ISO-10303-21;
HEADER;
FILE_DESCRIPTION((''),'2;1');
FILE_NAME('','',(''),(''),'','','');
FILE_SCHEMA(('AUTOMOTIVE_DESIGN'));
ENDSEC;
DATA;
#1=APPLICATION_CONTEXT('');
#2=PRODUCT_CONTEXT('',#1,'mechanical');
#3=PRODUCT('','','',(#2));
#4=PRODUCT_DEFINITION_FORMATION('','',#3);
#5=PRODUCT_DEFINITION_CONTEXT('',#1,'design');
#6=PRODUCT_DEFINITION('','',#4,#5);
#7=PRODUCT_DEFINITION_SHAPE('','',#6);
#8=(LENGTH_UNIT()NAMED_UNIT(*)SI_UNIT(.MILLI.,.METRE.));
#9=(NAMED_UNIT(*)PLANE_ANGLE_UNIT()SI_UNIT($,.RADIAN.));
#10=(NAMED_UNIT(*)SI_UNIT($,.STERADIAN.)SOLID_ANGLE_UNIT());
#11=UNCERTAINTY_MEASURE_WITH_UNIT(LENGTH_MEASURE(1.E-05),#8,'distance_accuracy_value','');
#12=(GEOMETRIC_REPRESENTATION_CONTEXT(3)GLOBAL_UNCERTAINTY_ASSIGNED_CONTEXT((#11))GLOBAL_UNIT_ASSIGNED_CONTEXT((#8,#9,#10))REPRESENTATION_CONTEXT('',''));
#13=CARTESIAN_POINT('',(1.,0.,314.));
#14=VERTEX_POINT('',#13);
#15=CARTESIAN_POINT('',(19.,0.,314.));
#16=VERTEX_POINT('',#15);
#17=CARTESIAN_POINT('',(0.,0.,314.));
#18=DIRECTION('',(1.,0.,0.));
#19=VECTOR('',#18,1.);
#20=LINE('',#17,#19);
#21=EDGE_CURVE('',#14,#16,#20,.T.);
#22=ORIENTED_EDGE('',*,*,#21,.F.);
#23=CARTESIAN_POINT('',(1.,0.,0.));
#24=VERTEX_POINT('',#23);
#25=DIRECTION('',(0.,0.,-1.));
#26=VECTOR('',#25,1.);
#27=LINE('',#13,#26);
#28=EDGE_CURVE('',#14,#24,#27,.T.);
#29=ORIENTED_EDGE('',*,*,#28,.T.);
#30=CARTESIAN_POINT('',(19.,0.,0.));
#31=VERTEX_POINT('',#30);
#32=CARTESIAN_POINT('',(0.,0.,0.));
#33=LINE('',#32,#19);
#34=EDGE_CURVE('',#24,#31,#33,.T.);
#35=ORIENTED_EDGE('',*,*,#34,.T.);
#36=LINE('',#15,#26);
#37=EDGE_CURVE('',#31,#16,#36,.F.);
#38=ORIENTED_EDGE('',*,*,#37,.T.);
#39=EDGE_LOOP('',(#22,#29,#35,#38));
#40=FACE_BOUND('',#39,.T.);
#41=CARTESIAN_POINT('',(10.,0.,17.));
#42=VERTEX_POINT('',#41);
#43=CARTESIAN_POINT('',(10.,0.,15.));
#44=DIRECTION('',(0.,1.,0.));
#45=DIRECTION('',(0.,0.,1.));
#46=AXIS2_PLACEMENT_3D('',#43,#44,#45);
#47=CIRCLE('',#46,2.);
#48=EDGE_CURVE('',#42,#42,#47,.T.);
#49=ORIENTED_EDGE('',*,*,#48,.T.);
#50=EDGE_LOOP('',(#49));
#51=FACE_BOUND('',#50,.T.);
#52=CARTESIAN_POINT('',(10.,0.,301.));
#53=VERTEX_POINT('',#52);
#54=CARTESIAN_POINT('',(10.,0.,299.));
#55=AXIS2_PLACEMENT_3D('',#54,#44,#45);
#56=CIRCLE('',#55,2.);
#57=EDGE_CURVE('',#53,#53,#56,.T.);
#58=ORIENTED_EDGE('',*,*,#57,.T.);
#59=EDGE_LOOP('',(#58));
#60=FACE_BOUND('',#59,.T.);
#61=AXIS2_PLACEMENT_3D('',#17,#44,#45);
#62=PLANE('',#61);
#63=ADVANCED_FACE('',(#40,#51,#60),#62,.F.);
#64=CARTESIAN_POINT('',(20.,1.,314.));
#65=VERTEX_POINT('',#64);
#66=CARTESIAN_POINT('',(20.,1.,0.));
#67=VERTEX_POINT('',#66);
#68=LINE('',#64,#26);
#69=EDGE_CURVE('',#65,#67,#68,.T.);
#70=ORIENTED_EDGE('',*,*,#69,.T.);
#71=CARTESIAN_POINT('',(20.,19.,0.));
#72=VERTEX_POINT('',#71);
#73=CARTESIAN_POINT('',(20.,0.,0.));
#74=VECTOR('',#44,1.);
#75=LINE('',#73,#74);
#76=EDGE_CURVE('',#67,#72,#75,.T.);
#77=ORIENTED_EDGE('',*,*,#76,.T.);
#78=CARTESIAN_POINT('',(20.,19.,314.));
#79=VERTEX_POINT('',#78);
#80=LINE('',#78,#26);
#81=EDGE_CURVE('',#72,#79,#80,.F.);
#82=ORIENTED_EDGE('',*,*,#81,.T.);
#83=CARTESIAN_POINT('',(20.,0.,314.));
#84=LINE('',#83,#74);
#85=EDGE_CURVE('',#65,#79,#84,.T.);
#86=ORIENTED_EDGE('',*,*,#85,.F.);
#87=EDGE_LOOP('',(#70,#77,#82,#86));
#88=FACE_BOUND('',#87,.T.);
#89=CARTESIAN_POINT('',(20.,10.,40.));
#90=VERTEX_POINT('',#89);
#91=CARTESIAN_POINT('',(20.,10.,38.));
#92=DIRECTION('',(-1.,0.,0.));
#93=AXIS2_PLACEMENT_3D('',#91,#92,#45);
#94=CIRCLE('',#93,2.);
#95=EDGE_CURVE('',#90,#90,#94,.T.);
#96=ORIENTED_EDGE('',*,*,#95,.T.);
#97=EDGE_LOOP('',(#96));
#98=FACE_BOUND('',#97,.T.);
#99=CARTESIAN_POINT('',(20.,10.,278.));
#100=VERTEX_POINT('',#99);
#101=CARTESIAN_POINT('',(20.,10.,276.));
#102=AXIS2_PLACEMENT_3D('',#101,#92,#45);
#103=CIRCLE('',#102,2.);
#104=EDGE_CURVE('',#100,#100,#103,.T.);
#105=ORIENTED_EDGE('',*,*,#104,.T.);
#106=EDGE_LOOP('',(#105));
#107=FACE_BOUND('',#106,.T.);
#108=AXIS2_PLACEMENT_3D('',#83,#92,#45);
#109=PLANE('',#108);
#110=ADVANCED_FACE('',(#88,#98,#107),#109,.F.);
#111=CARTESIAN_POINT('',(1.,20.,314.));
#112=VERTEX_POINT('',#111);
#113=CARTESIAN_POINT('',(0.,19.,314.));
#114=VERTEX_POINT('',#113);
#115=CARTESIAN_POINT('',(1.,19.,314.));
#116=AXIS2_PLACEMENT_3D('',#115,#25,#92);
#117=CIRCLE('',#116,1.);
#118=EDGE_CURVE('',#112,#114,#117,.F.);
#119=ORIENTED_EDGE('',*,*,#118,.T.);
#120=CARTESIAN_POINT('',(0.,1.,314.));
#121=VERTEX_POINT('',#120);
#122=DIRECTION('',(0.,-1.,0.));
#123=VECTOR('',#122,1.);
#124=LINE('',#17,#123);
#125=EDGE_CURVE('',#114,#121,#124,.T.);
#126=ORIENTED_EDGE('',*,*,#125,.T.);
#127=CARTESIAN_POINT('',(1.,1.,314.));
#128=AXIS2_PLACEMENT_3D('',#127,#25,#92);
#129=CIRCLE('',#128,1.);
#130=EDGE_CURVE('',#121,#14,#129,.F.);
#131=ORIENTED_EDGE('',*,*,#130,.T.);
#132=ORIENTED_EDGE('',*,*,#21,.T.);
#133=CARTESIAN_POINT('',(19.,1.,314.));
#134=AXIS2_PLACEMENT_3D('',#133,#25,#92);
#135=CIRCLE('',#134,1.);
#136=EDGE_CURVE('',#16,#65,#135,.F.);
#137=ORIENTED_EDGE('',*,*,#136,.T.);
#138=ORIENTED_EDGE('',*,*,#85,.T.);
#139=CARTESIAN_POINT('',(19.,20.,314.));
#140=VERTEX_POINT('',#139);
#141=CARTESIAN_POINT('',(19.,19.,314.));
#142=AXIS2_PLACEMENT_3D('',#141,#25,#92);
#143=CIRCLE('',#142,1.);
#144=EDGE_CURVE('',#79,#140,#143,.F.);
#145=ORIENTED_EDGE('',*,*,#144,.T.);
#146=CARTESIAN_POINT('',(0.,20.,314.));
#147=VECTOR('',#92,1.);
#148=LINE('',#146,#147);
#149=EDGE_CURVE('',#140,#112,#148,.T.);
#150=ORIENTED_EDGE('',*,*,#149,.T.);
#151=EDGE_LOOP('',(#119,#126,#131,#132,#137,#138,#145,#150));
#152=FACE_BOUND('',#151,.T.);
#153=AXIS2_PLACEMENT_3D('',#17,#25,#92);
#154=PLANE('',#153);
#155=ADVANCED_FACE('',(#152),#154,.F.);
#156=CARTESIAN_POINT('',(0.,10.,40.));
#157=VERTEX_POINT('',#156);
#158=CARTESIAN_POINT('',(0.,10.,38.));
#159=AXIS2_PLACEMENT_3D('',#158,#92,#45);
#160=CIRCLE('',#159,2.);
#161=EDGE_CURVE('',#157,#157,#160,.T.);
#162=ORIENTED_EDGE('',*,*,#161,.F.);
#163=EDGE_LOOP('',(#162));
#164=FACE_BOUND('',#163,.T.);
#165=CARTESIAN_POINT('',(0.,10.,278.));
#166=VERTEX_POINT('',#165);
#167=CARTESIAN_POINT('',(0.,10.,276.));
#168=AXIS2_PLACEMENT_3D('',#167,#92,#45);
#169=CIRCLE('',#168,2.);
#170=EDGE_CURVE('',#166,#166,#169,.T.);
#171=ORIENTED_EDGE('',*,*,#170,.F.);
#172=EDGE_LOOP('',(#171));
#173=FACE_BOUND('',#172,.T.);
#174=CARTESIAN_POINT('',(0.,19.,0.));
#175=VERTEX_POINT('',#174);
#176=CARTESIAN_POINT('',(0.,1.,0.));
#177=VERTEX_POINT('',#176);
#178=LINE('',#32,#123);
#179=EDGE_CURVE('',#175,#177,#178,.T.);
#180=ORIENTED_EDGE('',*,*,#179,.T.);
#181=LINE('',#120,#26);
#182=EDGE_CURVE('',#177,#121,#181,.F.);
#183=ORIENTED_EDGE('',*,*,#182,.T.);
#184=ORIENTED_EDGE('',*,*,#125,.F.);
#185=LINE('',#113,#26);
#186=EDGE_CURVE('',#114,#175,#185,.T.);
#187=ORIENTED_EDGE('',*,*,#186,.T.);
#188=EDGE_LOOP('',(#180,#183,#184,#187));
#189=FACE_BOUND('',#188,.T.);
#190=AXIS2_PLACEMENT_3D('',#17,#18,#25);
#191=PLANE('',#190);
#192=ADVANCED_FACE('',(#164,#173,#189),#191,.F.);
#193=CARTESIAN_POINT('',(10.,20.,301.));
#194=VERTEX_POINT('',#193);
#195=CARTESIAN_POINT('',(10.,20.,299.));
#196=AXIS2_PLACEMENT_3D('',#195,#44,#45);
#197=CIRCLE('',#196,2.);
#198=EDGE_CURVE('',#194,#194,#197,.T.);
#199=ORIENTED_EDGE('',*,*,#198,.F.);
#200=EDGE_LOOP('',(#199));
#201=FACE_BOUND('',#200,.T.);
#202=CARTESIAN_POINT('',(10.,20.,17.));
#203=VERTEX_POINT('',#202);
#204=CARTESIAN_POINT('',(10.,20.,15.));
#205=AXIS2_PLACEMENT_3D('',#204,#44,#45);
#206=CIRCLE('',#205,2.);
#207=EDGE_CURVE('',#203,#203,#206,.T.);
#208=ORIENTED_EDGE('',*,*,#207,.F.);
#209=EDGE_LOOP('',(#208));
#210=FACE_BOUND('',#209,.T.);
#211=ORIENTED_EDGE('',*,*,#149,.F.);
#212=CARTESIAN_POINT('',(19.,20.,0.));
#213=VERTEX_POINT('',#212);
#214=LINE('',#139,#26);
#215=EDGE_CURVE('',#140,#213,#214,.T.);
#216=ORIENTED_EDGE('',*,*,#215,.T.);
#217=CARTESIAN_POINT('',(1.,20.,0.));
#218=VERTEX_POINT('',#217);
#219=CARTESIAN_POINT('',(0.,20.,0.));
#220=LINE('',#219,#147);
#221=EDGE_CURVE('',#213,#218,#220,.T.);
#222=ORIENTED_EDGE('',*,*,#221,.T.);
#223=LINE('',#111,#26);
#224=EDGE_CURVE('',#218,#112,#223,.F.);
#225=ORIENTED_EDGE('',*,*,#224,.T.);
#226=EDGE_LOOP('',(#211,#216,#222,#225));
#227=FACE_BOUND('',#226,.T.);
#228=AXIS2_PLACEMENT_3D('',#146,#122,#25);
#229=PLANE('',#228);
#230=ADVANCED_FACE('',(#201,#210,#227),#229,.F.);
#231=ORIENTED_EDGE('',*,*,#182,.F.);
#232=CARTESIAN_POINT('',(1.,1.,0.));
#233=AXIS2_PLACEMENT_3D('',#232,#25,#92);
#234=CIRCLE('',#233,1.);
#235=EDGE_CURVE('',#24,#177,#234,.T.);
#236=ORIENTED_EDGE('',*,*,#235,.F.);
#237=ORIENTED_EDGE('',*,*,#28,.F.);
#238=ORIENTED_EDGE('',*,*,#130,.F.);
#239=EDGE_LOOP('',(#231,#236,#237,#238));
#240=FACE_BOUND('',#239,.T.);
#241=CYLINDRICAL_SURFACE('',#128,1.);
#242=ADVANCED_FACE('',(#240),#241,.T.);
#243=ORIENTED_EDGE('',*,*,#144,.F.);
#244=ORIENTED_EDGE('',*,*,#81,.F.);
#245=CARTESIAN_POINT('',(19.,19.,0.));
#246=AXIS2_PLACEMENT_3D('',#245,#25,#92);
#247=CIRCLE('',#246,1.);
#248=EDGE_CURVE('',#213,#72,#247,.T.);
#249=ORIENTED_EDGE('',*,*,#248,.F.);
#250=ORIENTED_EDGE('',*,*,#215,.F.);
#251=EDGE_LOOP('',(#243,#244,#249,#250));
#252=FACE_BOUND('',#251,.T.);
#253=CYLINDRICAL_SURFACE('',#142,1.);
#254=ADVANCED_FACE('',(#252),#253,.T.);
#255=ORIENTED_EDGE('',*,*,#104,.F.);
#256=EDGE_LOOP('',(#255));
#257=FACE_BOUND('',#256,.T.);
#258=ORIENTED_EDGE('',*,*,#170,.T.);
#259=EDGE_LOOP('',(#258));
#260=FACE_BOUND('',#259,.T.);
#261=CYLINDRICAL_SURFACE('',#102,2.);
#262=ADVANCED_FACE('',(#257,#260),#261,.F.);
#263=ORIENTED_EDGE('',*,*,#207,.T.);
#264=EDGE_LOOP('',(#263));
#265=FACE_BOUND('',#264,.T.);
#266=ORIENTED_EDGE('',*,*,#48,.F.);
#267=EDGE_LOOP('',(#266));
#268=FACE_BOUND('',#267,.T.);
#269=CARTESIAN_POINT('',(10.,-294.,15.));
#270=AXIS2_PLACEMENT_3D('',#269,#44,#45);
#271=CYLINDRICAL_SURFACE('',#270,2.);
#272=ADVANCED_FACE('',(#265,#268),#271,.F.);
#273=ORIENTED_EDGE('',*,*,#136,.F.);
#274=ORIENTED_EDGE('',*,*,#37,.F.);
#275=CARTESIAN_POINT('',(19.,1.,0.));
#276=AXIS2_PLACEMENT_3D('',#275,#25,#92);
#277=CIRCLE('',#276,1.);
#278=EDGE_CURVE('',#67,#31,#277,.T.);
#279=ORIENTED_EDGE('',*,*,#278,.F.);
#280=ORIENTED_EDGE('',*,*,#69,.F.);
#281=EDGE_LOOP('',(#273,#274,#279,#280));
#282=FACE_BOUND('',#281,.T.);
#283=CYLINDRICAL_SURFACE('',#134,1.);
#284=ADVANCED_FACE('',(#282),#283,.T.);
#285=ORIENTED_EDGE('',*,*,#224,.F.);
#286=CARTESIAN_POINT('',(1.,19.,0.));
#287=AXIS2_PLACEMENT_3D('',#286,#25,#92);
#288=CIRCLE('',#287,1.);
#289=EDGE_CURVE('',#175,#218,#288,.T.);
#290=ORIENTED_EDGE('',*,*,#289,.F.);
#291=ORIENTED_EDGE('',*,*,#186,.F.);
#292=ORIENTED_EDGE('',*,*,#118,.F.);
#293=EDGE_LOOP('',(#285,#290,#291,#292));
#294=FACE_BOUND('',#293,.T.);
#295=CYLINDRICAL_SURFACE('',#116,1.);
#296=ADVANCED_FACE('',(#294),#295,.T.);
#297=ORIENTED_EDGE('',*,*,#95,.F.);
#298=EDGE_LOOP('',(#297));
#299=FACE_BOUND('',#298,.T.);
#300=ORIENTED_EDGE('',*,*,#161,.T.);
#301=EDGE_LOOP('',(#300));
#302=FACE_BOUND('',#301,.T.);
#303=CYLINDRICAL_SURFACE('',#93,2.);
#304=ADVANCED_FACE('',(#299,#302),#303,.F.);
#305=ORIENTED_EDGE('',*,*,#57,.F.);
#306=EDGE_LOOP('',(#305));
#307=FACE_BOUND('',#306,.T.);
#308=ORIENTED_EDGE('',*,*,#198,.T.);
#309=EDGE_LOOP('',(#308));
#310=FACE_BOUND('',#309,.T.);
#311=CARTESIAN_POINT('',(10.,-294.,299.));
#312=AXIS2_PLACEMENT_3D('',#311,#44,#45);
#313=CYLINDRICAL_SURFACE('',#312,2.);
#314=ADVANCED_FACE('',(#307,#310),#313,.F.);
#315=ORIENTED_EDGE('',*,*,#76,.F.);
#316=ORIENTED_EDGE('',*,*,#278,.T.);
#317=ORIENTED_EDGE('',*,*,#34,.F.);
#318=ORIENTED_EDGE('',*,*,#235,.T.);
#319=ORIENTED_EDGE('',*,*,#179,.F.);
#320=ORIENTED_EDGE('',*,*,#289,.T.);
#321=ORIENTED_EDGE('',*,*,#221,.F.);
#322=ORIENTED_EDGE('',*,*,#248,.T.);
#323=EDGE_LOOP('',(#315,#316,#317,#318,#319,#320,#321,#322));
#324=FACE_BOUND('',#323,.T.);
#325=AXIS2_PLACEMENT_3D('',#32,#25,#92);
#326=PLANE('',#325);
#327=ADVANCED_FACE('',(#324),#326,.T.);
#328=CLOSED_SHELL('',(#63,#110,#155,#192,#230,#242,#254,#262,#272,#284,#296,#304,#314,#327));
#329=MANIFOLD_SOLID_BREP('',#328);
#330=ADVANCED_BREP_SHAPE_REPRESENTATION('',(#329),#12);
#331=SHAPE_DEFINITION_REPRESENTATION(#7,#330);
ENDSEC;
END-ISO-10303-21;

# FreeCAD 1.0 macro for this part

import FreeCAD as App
import Part
import Sketcher
from FreeCAD import Vector
Q = App.Units.Quantity


def edges_at(feature, points):
    """Names of the edges that pass closest to the given points."""
    edges = feature.Shape.Edges
    near = lambda p: min(range(len(edges)), key=lambda i: edges[i].distToShape(Part.Vertex(*p))[0])
    return sorted({f"Edge{near(p) + 1}" for p in points})


def add_polygon(sketch, points):
    """Adds a closed chain of lines whose ends are joined by coincident constraints."""
    first, n = sketch.GeometryCount, len(points)
    for a, b in zip(points, points[1:] + points[:1]):
        sketch.addGeometry(Part.LineSegment(App.Vector(*a, 0), App.Vector(*b, 0)), False)
    for i in range(n):
        sketch.addConstraint(Sketcher.Constraint("Coincident", first + i, 2, first + (i + 1) % n, 1))

doc = App.newDocument("Part")
params = doc.addObject("Spreadsheet::Sheet", "Params")
for row, (alias, value) in enumerate([
    ("sketch1_width", "20 mm"),
    ("pad1_length", "314 mm"),
    ("sketch2_diameter", "4 mm"),
    ("pocket1_length", "314 mm"),
    ("fillet_radius", "1 mm"),
    ("sketch3_diameter", "4 mm"),
    ("pocket2_length", "20 mm"),
], start=1):
    params.set(f"A{row}", alias)
    params.set(f"B{row}", "=" + value)
    params.setAlias(f"B{row}", alias)

body = doc.addObject("PartDesign::Body", "Body")

# Sketch on XY plane
sketch1 = body.newObject("Sketcher::SketchObject", "Sketch")
sketch1.AttachmentSupport = (doc.getObject("XY_Plane"), [""])
sketch1.MapMode = "FlatFace"
add_polygon(sketch1, [(0, 20), (0, 0), (20, 0), (20, 20)])  # lines 0-3
sketch1.addConstraint([
    Sketcher.Constraint("Vertical", 0),
    Sketcher.Constraint("Horizontal", 1),
    Sketcher.Constraint("Vertical", 2),
    Sketcher.Constraint("Horizontal", 3),
    Sketcher.Constraint("Coincident", 0, 2, -1, 1),
    Sketcher.Constraint("Equal", 3, 0),
    Sketcher.Constraint("DistanceX", 1, 1, 1, 2, Q("20 mm")),
])
sketch1.setExpression("Constraints[10]", "Params.sketch1_width")
pad1 = body.newObject("PartDesign::Pad", "Pad")
pad1.Profile = sketch1
pad1.setExpression("Length", "Params.pad1_length")

# Sketch on XZ plane
sketch2 = body.newObject("Sketcher::SketchObject", "Sketch001")
sketch2.AttachmentSupport = (doc.getObject("XZ_Plane"), [""])
sketch2.MapMode = "FlatFace"
sketch2.AttachmentOffset = App.Placement(Vector(0, 0, -20), App.Rotation())
sketch2.addGeometry([
    Part.Circle(Vector(10, 15, 0), Vector(0, 0, 1), 2),
    Part.Circle(Vector(10, 299, 0), Vector(0, 0, 1), 2),
], False)
sketch2.addConstraint([
    Sketcher.Constraint("Equal", 0, 1),
    Sketcher.Constraint("Vertical", 0, 3, 1, 3),
    Sketcher.Constraint("Diameter", 0, Q("4 mm")),
    Sketcher.Constraint("DistanceX", -1, 1, 0, 3, Q("10 mm")),
    Sketcher.Constraint("DistanceY", -1, 1, 0, 3, Q("15 mm")),
    Sketcher.Constraint("DistanceY", -1, 1, 1, 3, Q("299 mm")),
])
sketch2.setExpression("Constraints[2]", "Params.sketch2_diameter")
pocket1 = body.newObject("PartDesign::Pocket", "Pocket")
pocket1.Profile = sketch2
pocket1.setExpression("Length", "Params.pocket1_length")
pocket1.Reversed = True
doc.recompute()

fillet = body.newObject("PartDesign::Fillet", "Fillet")
fillet.Base = (pocket1, edges_at(pocket1, [
    (0, 20, 157),
    (20, 20, 157),
    (20, 0, 157),
    (0, 0, 157),
]))
fillet.setExpression("Radius", "Params.fillet_radius")

# Sketch on YZ plane
sketch3 = body.newObject("Sketcher::SketchObject", "Sketch002")
sketch3.AttachmentSupport = (doc.getObject("YZ_Plane"), [""])
sketch3.MapMode = "FlatFace"
sketch3.addGeometry([
    Part.Circle(Vector(10, 38, 0), Vector(0, 0, 1), 2),
    Part.Circle(Vector(10, 276, 0), Vector(0, 0, 1), 2),
], False)
sketch3.addConstraint([
    Sketcher.Constraint("Equal", 0, 1),
    Sketcher.Constraint("Vertical", 0, 3, 1, 3),
    Sketcher.Constraint("Diameter", 0, Q("4 mm")),
    Sketcher.Constraint("DistanceX", -1, 1, 0, 3, Q("10 mm")),
    Sketcher.Constraint("DistanceY", -1, 1, 0, 3, Q("38 mm")),
    Sketcher.Constraint("DistanceY", -1, 1, 1, 3, Q("276 mm")),
])
sketch3.setExpression("Constraints[2]", "Params.sketch3_diameter")
pocket2 = body.newObject("PartDesign::Pocket", "Pocket001")
pocket2.Profile = sketch3
pocket2.setExpression("Length", "Params.pocket2_length")
pocket2.Reversed = True

doc.recompute()
